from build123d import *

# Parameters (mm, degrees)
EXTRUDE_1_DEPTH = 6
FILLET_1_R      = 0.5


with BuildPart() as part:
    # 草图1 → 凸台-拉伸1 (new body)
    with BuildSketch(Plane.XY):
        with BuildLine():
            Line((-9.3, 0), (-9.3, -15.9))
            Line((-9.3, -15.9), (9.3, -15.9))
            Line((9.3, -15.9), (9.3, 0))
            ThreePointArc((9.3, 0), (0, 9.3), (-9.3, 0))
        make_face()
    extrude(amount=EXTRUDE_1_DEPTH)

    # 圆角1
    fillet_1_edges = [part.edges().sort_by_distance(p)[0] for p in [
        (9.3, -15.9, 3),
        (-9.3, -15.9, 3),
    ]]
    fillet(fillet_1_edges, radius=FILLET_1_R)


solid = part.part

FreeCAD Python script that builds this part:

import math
import FreeCAD as App
import Part
import Sketcher
Q = App.Units.Quantity


def edges_at(feature, points):
    """Names of the edges that pass closest to the given points."""
    edges = feature.Shape.Edges
    near = lambda p: min(range(len(edges)), key=lambda i: edges[i].distToShape(Part.Vertex(*p))[0])
    return sorted({f"Edge{near(p) + 1}" for p in points})

doc = App.newDocument("Part")
body = doc.addObject("PartDesign::Body", "Body")

# Sketch on XY plane
sketch1 = body.newObject("Sketcher::SketchObject", "Sketch")
sketch1.AttachmentSupport = (doc.getObject("XY_Plane"), [""])
sketch1.MapMode = "FlatFace"
sketch1.addGeometry(Part.LineSegment(App.Vector(-9, 0, 0), App.Vector(-9, -16, 0)), False)
sketch1.addGeometry(Part.LineSegment(App.Vector(-9, -16, 0), App.Vector(9, -16, 0)), False)
sketch1.addGeometry(Part.LineSegment(App.Vector(9, -16, 0), App.Vector(9, 0, 0)), False)
sketch1.addGeometry(Part.ArcOfCircle(Part.Circle(App.Vector(0, 0, 0), App.Vector(0, 0, 1), 9), math.radians(0), math.radians(180)), False)
sketch1.addConstraint(Sketcher.Constraint("Coincident", 0, 2, 1, 1))
sketch1.addConstraint(Sketcher.Constraint("Coincident", 1, 2, 2, 1))
sketch1.addConstraint(Sketcher.Constraint("Tangent", 2, 2, 3, 1))
sketch1.addConstraint(Sketcher.Constraint("Tangent", 3, 2, 0, 1))
sketch1.addConstraint(Sketcher.Constraint("Vertical", 0))
sketch1.addConstraint(Sketcher.Constraint("Horizontal", 1))
sketch1.addConstraint(Sketcher.Constraint("Vertical", 2))
sketch1.addConstraint(Sketcher.Constraint("Coincident", 3, 3, -1, 1))
sketch1.addConstraint(Sketcher.Constraint("Radius", 3, Q("9.3 mm")))
sketch1.addConstraint(Sketcher.Constraint("DistanceY", 0, 2, 0, 1, Q("15.9 mm")))
pad1 = body.newObject("PartDesign::Pad", "Pad")
pad1.Profile = sketch1
pad1.Length = 6
doc.recompute()

fillet = body.newObject("PartDesign::Fillet", "Fillet")
fillet.Base = (pad1, edges_at(pad1, [(9.3, -15.9, 3), (-9.3, -15.9, 3)]))
fillet.Radius = 0.5

doc.recompute()
